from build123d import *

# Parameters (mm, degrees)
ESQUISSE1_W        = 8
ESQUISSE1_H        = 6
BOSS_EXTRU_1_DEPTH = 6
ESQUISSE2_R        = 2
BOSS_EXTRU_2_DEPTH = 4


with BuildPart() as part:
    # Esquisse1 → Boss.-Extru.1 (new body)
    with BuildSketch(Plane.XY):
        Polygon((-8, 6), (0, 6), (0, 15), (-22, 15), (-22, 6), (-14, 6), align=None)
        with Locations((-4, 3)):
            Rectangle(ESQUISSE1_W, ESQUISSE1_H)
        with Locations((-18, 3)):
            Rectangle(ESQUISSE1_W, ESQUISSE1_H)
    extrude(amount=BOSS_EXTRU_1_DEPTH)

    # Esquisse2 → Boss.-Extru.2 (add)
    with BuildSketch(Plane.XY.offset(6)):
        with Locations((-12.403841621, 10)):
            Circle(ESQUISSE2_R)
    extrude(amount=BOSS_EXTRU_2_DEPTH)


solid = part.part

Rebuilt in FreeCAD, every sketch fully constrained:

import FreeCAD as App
import Part
import Sketcher


def add_polygon(sketch, points):
    """Adds a closed chain of lines whose ends are joined by coincident constraints."""
    first, n = sketch.GeometryCount, len(points)
    for a, b in zip(points, points[1:] + points[:1]):
        sketch.addGeometry(Part.LineSegment(App.Vector(*a, 0), App.Vector(*b, 0)), False)
    for i in range(n):
        sketch.addConstraint(Sketcher.Constraint("Coincident", first + i, 2, first + (i + 1) % n, 1))

doc = App.newDocument("Part")
body = doc.addObject("PartDesign::Body", "Body")

# Sketch on XY plane
sketch1 = doc.addObject("Sketcher::SketchObject", "Sketch")
body.addObject(sketch1)
sketch1.AttachmentSupport = (doc.XY_Plane, [""])
sketch1.MapMode = "FlatFace"
add_polygon(sketch1, [(0, 15), (-22, 15), (-22, 0), (-14, 0), (-14, 6), (-8, 6), (-8, 0), (0, 0)])  # lines 0-7
sketch1.addConstraint([
    Sketcher.Constraint("Horizontal", 0),
    Sketcher.Constraint("Vertical", 1),
    Sketcher.Constraint("Horizontal", 2),
    Sketcher.Constraint("Vertical", 3),
    Sketcher.Constraint("Horizontal", 4),
    Sketcher.Constraint("Vertical", 5),
    Sketcher.Constraint("Horizontal", 6),
    Sketcher.Constraint("Vertical", 7),
    Sketcher.Constraint("Coincident", 6, 2, -1, 1),
    Sketcher.Constraint("PointOnObject", 1, 2, -1),
    Sketcher.Constraint("Equal", 2, 6),
    Sketcher.Constraint("Equal", 4, 3),
    Sketcher.Constraint("DistanceX", 0, 2, 0, 1, 22.0),
    Sketcher.Constraint("DistanceX", 2, 1, 2, 2, 8.0),
    Sketcher.Constraint("DistanceY", 1, 2, 1, 1, 15.0),
])
pad1 = doc.addObject("PartDesign::Pad", "Pad")
body.addObject(pad1)
pad1.Profile = sketch1
pad1.Length = 6

# Sketch on XY plane
sketch2 = doc.addObject("Sketcher::SketchObject", "Sketch001")
body.addObject(sketch2)
sketch2.AttachmentSupport = (doc.XY_Plane, [""])
sketch2.MapMode = "FlatFace"
sketch2.AttachmentOffset = App.Placement(App.Vector(0, 0, 6), App.Rotation())
sketch2.addGeometry(Part.Circle(App.Vector(-12.4, 10, 0), App.Vector(0, 0, 1), 2), False)
sketch2.addConstraint([
    Sketcher.Constraint("Diameter", 0, 4.0),
    Sketcher.Constraint("DistanceY", -1, 1, 0, 3, 10.0),
    Sketcher.Constraint("DistanceX", 0, 3, -1, 1, 12.403842),
])
pad2 = doc.addObject("PartDesign::Pad", "Pad001")
body.addObject(pad2)
pad2.Profile = sketch2
pad2.Length = 4

doc.recompute()
